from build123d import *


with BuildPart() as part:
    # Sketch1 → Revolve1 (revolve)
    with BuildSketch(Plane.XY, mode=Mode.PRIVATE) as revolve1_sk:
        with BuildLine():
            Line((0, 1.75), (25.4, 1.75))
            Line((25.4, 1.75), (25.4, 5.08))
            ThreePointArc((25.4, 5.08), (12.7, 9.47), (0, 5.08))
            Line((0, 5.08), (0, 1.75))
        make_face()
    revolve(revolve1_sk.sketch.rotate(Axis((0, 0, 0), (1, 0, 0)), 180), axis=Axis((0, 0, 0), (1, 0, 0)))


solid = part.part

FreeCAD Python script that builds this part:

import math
import FreeCAD as App
import Part
import Sketcher

V = App.Vector
Q = App.Units.Quantity

doc = App.newDocument("Part")
body = doc.addObject("PartDesign::Body", "Body")

# Sketch on XY plane
sketch1 = body.newObject("Sketcher::SketchObject", "Sketch")
sketch1.AttachmentSupport = (doc.getObject("XY_Plane"), [""])
sketch1.MapMode = "FlatFace"
sketch1.addGeometry([
    Part.LineSegment(V(0, 1.8, 0), V(25.4, 1.8, 0)),
    Part.LineSegment(V(25.4, 1.8, 0), V(25.4, 5.1, 0)),
    Part.ArcOfCircle(Part.Circle(V(12.7, -11.1, 0), V(0, 0, 1), 20.6), math.radians(52), math.radians(128)),
    Part.LineSegment(V(0, 5.1, 0), V(0, 1.8, 0)),
], False)
sketch1.addConstraint([
    Sketcher.Constraint("Coincident", 0, 2, 1, 1),
    Sketcher.Constraint("Coincident", 1, 2, 2, 1),
    Sketcher.Constraint("Coincident", 2, 2, 3, 1),
    Sketcher.Constraint("Coincident", 3, 2, 0, 1),
    Sketcher.Constraint("Horizontal", 0),
    Sketcher.Constraint("Vertical", 1),
    Sketcher.Constraint("Vertical", 3),
    Sketcher.Constraint("PointOnObject", 2, 2, -2),
    Sketcher.Constraint("Horizontal", 1, 2, 2, 2),
    Sketcher.Constraint("DistanceX", 0, 1, 0, 2, Q("1 in")),
    Sketcher.Constraint("DistanceY", -1, 1, 1, 2, Q("0.2 in")),
    Sketcher.Constraint("Radius", 2, Q("20.565159 mm")),
    Sketcher.Constraint("DistanceY", 1, 1, 1, 2, Q("3.33 mm")),
])
revolution = body.newObject("PartDesign::Revolution", "Revolution")
revolution.Profile = sketch1
revolution.ReferenceAxis = (sketch1, ["H_Axis"])
revolution.Angle = 360

doc.recompute()
